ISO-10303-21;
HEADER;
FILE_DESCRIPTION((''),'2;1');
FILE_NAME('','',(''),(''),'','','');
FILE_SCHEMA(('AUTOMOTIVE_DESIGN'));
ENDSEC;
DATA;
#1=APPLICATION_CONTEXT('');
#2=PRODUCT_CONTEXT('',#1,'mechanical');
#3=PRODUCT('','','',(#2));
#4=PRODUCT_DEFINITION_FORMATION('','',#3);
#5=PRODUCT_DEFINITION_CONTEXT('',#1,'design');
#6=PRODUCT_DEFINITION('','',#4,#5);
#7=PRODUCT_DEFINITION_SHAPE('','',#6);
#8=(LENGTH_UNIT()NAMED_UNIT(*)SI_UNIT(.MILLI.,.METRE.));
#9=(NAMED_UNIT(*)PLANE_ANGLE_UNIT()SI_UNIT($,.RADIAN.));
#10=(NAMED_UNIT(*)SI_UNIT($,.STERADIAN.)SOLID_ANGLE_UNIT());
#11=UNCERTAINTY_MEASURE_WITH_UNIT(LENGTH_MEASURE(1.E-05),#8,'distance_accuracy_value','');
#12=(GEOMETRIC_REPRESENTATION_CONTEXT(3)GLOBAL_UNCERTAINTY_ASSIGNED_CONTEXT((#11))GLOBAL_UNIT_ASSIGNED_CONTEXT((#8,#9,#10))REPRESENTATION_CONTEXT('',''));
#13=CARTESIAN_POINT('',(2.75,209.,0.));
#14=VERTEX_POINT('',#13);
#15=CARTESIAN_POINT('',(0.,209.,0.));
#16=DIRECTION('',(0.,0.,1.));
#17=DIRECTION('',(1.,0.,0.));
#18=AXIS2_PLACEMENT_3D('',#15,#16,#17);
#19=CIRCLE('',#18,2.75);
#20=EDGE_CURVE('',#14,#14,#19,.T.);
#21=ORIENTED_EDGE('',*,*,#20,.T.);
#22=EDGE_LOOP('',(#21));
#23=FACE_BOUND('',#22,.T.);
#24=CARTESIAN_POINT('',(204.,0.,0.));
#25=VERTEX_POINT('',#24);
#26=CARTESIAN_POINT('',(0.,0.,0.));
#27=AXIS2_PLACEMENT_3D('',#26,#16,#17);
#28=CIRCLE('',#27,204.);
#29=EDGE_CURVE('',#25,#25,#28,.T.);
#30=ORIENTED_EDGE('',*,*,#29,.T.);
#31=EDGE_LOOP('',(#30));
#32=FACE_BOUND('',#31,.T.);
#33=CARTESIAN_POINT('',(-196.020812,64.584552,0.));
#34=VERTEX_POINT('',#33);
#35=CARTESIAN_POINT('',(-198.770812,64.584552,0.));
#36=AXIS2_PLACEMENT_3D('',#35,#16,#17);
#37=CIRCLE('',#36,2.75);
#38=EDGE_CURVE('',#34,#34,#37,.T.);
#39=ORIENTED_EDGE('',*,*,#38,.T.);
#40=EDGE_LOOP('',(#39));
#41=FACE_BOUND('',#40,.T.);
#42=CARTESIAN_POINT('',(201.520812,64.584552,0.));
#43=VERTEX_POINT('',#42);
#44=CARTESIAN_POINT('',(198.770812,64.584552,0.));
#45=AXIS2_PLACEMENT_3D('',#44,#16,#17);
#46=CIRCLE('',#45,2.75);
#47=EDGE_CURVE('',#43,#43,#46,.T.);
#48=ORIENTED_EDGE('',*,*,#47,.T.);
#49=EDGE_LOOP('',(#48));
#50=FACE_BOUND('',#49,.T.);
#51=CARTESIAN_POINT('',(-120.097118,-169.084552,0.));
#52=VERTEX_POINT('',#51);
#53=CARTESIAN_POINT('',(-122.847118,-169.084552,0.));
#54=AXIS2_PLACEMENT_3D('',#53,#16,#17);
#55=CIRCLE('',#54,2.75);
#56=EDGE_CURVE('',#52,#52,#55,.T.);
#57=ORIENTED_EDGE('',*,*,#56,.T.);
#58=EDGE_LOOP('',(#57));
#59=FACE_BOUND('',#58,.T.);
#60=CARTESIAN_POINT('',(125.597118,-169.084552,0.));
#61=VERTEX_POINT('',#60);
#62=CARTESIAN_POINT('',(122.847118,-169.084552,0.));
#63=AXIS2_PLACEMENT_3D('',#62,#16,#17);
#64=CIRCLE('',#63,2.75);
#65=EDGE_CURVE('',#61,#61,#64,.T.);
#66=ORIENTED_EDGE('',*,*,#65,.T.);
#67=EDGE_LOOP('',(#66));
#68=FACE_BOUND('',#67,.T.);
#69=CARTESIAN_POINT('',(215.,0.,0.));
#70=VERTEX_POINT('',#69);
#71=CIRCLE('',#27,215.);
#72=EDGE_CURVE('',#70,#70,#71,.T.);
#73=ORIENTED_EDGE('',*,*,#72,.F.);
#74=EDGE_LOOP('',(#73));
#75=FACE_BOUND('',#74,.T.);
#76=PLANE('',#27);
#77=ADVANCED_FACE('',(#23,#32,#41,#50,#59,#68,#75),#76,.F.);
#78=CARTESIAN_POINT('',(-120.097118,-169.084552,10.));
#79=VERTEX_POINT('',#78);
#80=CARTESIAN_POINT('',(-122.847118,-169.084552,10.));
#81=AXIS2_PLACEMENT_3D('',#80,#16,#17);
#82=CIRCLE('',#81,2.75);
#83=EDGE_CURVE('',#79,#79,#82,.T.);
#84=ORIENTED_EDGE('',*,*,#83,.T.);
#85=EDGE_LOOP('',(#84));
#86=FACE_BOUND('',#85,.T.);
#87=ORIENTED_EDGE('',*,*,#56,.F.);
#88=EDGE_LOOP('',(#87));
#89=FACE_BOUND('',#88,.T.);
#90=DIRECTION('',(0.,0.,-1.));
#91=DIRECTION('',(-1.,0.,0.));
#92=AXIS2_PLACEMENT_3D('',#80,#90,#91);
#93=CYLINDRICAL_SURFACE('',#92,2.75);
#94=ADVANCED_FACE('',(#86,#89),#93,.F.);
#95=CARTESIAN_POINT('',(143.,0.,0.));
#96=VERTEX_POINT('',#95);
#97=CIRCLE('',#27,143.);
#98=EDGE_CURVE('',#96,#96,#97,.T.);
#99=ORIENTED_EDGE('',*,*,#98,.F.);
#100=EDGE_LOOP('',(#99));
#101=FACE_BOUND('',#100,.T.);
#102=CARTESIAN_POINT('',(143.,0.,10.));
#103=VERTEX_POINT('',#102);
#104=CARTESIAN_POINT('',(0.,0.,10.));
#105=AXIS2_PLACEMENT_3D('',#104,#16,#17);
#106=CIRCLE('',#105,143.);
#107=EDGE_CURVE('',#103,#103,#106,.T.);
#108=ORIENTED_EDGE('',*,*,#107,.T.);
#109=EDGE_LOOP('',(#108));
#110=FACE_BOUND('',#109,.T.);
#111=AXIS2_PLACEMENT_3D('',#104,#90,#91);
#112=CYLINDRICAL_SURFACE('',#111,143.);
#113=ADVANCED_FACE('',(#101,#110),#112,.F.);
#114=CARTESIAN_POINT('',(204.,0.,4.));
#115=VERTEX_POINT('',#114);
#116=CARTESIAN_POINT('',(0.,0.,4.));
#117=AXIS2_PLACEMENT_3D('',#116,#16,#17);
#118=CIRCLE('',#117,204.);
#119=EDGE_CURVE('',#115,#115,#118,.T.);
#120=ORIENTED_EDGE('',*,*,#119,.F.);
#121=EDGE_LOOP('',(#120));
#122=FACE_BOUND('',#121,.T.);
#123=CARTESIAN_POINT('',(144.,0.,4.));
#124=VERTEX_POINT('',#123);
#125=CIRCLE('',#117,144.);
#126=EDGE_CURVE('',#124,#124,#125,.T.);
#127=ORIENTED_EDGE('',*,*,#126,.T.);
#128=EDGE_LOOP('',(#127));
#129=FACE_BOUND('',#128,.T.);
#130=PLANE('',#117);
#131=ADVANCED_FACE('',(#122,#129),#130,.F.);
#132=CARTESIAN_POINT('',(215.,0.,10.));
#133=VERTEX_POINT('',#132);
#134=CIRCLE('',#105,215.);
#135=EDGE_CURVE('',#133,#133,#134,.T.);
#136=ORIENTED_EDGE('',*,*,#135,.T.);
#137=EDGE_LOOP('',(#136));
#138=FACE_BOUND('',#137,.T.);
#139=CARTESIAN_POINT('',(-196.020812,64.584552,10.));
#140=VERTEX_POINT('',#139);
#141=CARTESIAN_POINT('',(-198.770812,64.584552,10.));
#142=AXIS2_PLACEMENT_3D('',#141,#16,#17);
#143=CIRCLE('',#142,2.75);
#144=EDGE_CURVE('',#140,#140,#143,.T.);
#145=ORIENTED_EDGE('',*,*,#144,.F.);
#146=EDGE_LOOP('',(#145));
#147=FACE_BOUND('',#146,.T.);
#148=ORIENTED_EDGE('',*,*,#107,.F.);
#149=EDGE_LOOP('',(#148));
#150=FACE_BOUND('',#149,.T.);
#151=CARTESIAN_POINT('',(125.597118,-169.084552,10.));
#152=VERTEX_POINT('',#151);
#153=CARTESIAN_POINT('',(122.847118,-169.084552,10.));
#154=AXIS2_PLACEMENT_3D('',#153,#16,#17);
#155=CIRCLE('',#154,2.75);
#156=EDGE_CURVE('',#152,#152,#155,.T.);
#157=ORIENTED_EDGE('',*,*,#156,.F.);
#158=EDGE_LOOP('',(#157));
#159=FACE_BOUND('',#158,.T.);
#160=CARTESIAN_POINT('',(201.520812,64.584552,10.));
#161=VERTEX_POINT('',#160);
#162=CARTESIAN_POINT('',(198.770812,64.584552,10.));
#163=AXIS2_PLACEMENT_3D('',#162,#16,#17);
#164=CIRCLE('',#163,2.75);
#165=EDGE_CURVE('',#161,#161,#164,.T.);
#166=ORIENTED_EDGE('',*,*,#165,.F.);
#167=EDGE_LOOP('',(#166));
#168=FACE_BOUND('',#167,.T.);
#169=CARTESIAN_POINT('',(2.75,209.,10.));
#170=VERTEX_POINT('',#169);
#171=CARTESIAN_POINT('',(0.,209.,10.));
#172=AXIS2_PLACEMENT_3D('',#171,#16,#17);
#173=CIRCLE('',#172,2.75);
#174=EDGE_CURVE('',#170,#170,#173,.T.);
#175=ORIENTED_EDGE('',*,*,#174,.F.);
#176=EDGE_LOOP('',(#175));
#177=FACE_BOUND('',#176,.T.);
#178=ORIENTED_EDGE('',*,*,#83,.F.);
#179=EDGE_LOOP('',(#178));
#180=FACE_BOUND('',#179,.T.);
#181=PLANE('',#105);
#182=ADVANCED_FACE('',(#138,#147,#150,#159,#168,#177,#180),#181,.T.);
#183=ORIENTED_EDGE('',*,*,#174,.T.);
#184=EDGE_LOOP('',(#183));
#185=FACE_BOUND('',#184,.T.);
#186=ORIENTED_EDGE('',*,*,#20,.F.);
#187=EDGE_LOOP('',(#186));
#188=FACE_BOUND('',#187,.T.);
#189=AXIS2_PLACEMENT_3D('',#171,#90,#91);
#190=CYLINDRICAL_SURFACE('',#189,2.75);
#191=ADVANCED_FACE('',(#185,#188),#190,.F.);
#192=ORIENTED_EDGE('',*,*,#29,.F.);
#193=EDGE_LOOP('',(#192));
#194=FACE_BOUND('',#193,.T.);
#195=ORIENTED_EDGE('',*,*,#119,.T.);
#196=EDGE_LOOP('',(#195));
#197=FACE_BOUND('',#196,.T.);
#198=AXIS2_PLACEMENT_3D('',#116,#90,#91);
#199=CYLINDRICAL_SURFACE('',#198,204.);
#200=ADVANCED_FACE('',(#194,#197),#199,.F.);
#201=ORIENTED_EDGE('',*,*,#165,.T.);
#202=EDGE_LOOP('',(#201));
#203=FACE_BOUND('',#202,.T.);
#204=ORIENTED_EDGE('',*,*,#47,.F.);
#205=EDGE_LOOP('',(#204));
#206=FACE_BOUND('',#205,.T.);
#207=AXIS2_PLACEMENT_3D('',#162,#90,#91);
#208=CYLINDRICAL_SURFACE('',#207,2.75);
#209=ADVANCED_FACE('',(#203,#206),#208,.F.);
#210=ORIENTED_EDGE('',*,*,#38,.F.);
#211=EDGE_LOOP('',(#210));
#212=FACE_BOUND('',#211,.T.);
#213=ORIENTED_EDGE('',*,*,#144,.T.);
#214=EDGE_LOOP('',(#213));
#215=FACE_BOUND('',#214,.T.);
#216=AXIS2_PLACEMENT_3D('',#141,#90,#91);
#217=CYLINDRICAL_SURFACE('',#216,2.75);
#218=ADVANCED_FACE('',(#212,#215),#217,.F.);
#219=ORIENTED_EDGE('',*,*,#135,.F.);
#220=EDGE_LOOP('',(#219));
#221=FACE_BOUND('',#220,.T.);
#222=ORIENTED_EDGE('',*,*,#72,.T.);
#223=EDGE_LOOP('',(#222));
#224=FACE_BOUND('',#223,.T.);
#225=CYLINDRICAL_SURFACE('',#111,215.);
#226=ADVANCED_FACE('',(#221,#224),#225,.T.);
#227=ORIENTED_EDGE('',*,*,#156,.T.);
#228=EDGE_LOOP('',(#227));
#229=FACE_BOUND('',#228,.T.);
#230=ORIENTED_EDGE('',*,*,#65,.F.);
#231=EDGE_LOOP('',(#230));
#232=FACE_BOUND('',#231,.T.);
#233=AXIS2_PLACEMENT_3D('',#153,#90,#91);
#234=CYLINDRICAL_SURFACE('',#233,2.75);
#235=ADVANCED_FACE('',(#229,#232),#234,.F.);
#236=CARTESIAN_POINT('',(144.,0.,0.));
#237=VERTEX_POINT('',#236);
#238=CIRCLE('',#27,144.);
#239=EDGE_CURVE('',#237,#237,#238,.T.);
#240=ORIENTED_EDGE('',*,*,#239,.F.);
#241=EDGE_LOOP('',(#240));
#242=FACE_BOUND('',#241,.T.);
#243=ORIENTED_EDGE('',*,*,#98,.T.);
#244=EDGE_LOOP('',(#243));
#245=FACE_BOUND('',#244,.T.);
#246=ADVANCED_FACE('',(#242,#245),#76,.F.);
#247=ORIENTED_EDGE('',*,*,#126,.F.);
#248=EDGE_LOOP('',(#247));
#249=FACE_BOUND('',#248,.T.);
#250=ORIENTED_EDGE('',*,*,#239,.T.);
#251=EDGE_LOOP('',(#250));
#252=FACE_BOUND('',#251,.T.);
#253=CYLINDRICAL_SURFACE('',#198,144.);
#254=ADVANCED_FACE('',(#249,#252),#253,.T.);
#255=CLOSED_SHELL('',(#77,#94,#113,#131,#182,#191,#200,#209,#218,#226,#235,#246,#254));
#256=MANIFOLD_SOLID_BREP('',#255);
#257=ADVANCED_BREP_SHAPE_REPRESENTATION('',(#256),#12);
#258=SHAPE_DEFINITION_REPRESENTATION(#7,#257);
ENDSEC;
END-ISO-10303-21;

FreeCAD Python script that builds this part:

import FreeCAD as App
import Part
import Sketcher
Q = App.Units.Quantity

doc = App.newDocument("Part")
body = doc.addObject("PartDesign::Body", "Body")

# Sketch on XY plane
sketch1 = doc.addObject("Sketcher::SketchObject", "Sketch")
body.addObject(sketch1)
sketch1.AttachmentSupport = (doc.XY_Plane, [""])
sketch1.MapMode = "FlatFace"
sketch1.addGeometry([
    Part.Circle(App.Vector(0, 0, 0), App.Vector(0, 0, 1), 215),
    Part.Circle(App.Vector(0, 0, 0), App.Vector(0, 0, 1), 143),
], False)
sketch1.addConstraint([
    Sketcher.Constraint("Coincident", 0, 3, -1, 1),
    Sketcher.Constraint("Coincident", 1, 3, -1, 1),
    Sketcher.Constraint("Diameter", 0, Q("430 mm")),
    Sketcher.Constraint("Diameter", 1, Q("286 mm")),
])
pad1 = doc.addObject("PartDesign::Pad", "Pad")
body.addObject(pad1)
pad1.Profile = sketch1
pad1.Length = 10

# Sketch on XY plane
sketch2 = doc.addObject("Sketcher::SketchObject", "Sketch001")
body.addObject(sketch2)
sketch2.AttachmentSupport = (doc.XY_Plane, [""])
sketch2.MapMode = "FlatFace"
sketch2.addGeometry([
    Part.Circle(App.Vector(0, 0, 0), App.Vector(0, 0, 1), 204),
    Part.Circle(App.Vector(0, 0, 0), App.Vector(0, 0, 1), 144),
], False)
sketch2.addConstraint([
    Sketcher.Constraint("Coincident", 0, 3, -1, 1),
    Sketcher.Constraint("Coincident", 1, 3, -1, 1),
    Sketcher.Constraint("Diameter", 0, Q("408 mm")),
    Sketcher.Constraint("Diameter", 1, Q("288 mm")),
])
pocket1 = doc.addObject("PartDesign::Pocket", "Pocket")
body.addObject(pocket1)
pocket1.Profile = sketch2
pocket1.Length = 4
pocket1.Reversed = True

# Sketch on XY plane
sketch3 = doc.addObject("Sketcher::SketchObject", "Sketch002")
body.addObject(sketch3)
sketch3.AttachmentSupport = (doc.XY_Plane, [""])
sketch3.MapMode = "FlatFace"
sketch3.addGeometry([
    Part.Circle(App.Vector(198.8, 64.6, 0), App.Vector(0, 0, 1), 2.8),  # 0
    Part.Circle(App.Vector(0, 209, 0), App.Vector(0, 0, 1), 2.8),  # 1
    Part.Circle(App.Vector(-198.8, 64.6, 0), App.Vector(0, 0, 1), 2.8),  # 2
    Part.Circle(App.Vector(-122.8, -169.1, 0), App.Vector(0, 0, 1), 2.8),  # 3
    Part.Circle(App.Vector(122.8, -169.1, 0), App.Vector(0, 0, 1), 2.8),  # 4
], False)
sketch3.addConstraint([
    Sketcher.Constraint("Equal", 0, 1),
    Sketcher.Constraint("Equal", 1, 2),
    Sketcher.Constraint("Equal", 2, 3),
    Sketcher.Constraint("Equal", 3, 4),
    Sketcher.Constraint("Symmetric", 0, 3, 2, 3, -2),
    Sketcher.Constraint("Symmetric", 3, 3, 4, 3, -2),
    Sketcher.Constraint("PointOnObject", 1, 3, -2),
    Sketcher.Constraint("Diameter", 0, Q("5.5 mm")),
    Sketcher.Constraint("DistanceY", -1, 1, 1, 3, Q("209 mm")),
    Sketcher.Constraint("DistanceX", -1, 1, 0, 3, Q("198.770812 mm")),
    Sketcher.Constraint("DistanceY", -1, 1, 0, 3, Q("64.584552 mm")),
    Sketcher.Constraint("DistanceY", 3, 3, -1, 1, Q("169.084552 mm")),
    Sketcher.Constraint("DistanceX", 3, 3, 0, 3, Q("321.61793 mm")),
])
pocket2 = doc.addObject("PartDesign::Pocket", "Pocket001")
body.addObject(pocket2)
pocket2.Profile = sketch3
pocket2.Length = 10
pocket2.Reversed = True

doc.recompute()
